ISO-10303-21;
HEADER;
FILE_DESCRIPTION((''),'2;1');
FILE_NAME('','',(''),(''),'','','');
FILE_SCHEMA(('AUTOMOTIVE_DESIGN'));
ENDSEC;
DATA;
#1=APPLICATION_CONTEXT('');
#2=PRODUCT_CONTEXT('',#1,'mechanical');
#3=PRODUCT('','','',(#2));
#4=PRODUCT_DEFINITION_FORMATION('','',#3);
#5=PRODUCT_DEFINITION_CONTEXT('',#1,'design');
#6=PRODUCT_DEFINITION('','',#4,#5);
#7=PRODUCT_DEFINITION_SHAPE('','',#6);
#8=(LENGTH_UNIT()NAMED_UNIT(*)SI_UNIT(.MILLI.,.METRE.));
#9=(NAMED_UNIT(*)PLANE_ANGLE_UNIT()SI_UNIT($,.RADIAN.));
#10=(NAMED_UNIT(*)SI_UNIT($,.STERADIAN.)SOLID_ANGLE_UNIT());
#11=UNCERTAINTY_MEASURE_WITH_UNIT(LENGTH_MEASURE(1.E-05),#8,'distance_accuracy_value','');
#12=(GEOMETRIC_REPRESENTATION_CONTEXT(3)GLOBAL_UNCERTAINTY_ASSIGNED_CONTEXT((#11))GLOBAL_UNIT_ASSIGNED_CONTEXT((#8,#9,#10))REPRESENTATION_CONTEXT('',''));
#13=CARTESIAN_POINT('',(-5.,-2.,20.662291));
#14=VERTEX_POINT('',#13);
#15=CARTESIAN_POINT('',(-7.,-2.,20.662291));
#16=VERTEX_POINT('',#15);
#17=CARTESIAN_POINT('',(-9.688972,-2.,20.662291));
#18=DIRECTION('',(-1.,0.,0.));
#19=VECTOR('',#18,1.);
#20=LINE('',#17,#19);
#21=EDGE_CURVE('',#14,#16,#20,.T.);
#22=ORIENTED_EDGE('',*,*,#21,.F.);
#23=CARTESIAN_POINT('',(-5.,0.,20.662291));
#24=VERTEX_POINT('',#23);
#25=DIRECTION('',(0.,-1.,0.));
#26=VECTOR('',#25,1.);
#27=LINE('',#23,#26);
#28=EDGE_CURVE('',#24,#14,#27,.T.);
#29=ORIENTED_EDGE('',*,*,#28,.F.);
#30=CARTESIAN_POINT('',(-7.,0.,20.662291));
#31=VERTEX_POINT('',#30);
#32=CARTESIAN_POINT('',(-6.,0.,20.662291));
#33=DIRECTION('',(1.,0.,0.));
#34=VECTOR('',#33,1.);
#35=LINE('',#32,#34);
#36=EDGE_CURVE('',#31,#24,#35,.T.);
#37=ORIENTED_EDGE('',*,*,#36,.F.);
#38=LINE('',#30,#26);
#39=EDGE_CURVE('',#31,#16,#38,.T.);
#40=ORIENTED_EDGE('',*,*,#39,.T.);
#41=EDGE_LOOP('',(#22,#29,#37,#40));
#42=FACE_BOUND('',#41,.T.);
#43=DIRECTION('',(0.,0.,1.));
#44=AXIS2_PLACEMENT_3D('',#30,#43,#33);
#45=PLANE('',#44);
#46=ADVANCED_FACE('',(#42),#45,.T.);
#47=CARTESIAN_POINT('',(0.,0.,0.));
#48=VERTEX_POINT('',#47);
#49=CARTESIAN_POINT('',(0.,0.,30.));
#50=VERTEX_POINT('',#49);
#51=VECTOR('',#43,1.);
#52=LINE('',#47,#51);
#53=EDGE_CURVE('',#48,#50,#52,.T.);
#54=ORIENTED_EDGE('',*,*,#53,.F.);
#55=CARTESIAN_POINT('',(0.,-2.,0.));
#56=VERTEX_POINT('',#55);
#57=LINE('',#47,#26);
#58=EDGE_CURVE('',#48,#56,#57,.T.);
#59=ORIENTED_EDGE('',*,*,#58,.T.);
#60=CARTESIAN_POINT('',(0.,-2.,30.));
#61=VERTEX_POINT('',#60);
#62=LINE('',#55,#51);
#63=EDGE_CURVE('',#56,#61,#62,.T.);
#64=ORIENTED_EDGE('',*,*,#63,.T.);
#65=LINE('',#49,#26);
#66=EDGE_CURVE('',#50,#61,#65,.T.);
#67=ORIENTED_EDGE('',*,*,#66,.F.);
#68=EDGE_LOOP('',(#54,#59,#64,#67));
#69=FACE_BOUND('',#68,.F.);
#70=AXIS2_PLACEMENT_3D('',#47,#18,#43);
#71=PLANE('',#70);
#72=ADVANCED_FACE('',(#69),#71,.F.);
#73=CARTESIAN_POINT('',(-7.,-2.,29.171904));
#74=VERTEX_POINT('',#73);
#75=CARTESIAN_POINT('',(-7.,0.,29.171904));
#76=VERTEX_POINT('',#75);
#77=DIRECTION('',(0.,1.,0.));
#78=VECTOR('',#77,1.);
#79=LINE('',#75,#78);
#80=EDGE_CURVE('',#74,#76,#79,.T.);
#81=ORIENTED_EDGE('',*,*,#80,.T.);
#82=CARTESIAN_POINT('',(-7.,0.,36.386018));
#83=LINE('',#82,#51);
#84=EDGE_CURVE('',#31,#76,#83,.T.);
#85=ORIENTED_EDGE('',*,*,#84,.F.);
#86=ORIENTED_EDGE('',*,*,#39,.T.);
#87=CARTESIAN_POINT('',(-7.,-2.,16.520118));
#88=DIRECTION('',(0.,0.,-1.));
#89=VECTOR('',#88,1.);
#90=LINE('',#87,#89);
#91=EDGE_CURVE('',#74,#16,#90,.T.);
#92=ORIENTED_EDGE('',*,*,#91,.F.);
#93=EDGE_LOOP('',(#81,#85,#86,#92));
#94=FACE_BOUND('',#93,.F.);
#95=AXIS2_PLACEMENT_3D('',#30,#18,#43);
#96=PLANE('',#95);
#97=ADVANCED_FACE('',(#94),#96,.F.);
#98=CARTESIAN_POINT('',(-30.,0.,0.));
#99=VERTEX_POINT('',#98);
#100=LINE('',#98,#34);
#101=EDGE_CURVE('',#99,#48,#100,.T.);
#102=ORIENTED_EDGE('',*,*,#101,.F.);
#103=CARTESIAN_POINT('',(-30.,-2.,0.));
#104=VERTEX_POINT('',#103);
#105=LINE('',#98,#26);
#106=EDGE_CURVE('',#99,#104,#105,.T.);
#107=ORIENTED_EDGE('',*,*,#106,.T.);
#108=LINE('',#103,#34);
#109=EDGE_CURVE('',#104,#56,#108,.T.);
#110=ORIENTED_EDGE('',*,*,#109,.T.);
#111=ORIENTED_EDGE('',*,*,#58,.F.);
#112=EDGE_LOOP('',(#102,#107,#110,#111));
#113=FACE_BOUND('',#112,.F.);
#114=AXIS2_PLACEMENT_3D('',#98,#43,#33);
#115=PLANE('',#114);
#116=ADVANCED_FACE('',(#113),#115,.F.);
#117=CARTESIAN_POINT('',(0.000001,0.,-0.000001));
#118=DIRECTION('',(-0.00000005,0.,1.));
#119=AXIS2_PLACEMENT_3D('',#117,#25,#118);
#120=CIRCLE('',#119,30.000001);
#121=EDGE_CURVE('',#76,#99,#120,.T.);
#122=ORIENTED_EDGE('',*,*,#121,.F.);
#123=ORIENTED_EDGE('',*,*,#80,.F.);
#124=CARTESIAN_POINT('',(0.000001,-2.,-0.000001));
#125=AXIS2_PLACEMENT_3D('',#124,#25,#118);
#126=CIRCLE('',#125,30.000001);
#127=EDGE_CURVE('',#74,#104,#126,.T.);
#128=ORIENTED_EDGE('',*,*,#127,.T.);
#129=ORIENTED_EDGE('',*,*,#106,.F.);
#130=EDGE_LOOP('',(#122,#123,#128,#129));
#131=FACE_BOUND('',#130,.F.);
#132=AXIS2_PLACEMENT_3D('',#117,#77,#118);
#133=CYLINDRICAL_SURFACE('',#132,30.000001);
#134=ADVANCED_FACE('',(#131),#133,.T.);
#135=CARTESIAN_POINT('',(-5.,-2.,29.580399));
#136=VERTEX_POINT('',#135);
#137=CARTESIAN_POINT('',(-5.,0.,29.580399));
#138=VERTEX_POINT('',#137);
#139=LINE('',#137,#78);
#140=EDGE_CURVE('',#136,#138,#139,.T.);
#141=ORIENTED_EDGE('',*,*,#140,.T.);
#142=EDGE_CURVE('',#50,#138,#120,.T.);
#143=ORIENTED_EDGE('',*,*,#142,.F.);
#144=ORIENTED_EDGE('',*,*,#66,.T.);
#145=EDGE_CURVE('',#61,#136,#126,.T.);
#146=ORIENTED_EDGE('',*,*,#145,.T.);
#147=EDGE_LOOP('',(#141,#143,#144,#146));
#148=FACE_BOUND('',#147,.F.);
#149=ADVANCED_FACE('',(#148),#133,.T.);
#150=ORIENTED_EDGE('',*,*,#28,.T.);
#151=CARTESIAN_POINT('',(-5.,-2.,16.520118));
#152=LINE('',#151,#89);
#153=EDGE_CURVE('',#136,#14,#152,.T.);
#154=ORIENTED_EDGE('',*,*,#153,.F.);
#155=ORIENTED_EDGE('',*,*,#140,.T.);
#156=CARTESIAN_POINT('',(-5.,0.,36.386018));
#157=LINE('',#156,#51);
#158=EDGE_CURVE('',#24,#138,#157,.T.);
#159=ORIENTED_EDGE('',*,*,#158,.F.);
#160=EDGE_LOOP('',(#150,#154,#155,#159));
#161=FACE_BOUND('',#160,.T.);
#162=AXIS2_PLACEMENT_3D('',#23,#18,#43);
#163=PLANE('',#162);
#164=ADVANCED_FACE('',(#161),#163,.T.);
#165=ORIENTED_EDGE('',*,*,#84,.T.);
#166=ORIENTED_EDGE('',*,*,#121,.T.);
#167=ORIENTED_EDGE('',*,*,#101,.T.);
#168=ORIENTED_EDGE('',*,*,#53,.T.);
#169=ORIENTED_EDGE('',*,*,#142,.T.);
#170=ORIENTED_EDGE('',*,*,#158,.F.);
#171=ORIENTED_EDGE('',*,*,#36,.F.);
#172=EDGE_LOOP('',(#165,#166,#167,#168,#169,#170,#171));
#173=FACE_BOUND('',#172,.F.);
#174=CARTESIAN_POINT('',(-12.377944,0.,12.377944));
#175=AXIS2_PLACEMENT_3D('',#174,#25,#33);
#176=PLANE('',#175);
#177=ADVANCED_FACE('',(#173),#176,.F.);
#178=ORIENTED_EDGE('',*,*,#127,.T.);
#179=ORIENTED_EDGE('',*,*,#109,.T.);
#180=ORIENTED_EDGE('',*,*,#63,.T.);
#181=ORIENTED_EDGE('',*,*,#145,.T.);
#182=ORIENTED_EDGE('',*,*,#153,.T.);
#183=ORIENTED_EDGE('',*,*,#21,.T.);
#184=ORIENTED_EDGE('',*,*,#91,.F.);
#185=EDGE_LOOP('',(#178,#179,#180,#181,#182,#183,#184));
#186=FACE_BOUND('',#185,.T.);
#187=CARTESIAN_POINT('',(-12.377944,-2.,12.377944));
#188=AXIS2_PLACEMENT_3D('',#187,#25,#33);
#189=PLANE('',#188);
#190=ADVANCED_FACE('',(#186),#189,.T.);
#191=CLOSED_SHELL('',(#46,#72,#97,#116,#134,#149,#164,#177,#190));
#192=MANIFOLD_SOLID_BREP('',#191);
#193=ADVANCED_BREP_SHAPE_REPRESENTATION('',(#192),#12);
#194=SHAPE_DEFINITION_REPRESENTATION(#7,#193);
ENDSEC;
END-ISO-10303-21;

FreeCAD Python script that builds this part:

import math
import FreeCAD as App
import Part
import Sketcher
from FreeCAD import Vector

doc = App.newDocument("Part")
body = doc.addObject("PartDesign::Body", "Body")

sketch1 = body.newObject("Sketcher::SketchObject", "Sketch")
sketch1.AttachmentSupport = (doc.getObject("XZ_Plane"), [""])
sketch1.MapMode = "FlatFace"
sketch1.addGeometry([
    Part.ArcOfCircle(Part.Circle(Vector(0, 0, 0), Vector(0, 0, 1), 30), math.radians(90), math.radians(180)),
    Part.LineSegment(Vector(-30, 0, 0), Vector(0, 0, 0)),
    Part.LineSegment(Vector(0, 0, 0), Vector(0, 30, 0)),
], False)
sketch1.addConstraint([
    Sketcher.Constraint("Coincident", 0, 2, 1, 1),
    Sketcher.Constraint("Coincident", 1, 2, 2, 1),
    Sketcher.Constraint("Coincident", 2, 2, 0, 1),
    Sketcher.Constraint("Horizontal", 1),
    Sketcher.Constraint("Vertical", 2),
    Sketcher.Constraint("Coincident", 0, 3, -1, 1),
    Sketcher.Constraint("Coincident", 1, 2, -1, 1),
    Sketcher.Constraint("Radius", 0, 30.000001),
])
pad1 = body.newObject("PartDesign::Pad", "Pad")
pad1.Profile = sketch1
pad1.Length = 2

sketch2 = body.newObject("Sketcher::SketchObject", "Sketch001")
sketch2.AttachmentSupport = (doc.getObject("XZ_Plane"), [""])
sketch2.MapMode = "FlatFace"
sketch2.addGeometry([
    Part.LineSegment(Vector(-7, 52.1, 0), Vector(-7, 20.7, 0)),
    Part.LineSegment(Vector(-7, 20.7, 0), Vector(-5, 20.7, 0)),
    Part.LineSegment(Vector(-5, 20.7, 0), Vector(-5, 52.1, 0)),
    Part.LineSegment(Vector(-5, 52.1, 0), Vector(-7, 52.1, 0)),
], False)
sketch2.addConstraint([
    Sketcher.Constraint("Coincident", 0, 2, 1, 1),
    Sketcher.Constraint("Coincident", 1, 2, 2, 1),
    Sketcher.Constraint("Coincident", 2, 2, 3, 1),
    Sketcher.Constraint("Coincident", 3, 2, 0, 1),
    Sketcher.Constraint("Vertical", 0),
    Sketcher.Constraint("Horizontal", 1),
    Sketcher.Constraint("Vertical", 2),
    Sketcher.Constraint("Horizontal", 3),
    Sketcher.Constraint("DistanceX", 1, 1, 1, 2, 2.0),
    Sketcher.Constraint("DistanceX", 0, 2, -1, 1, 7.0),
    Sketcher.Constraint("DistanceY", 0, 2, 0, 1, 31.447453),
    Sketcher.Constraint("DistanceY", -1, 1, 0, 2, 20.662291),
])
pocket1 = body.newObject("PartDesign::Pocket", "Pocket")
pocket1.Profile = sketch2
pocket1.Length = 25
pocket1.Reversed = True

doc.recompute()
